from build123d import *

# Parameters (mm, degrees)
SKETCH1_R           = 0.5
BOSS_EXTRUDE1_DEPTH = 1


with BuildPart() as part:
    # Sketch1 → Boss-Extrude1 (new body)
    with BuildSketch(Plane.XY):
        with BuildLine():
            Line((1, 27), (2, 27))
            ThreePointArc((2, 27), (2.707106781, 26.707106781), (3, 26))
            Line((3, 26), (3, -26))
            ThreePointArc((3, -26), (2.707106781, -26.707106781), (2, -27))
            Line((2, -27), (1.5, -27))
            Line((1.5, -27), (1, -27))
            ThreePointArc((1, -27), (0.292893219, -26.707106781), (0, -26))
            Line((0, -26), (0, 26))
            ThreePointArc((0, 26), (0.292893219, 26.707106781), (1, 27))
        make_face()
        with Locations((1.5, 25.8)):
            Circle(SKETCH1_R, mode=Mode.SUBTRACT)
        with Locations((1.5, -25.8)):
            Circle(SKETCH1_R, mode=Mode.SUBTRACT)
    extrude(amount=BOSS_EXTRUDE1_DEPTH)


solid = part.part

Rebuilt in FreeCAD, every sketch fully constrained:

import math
import FreeCAD as App
import Part
import Sketcher
Q = App.Units.Quantity

doc = App.newDocument("Part")
body = doc.addObject("PartDesign::Body", "Body")

sketch1 = body.newObject("Sketcher::SketchObject", "Sketch")
sketch1.AttachmentSupport = (doc.getObject("XY_Plane"), [""])
sketch1.MapMode = "FlatFace"
sketch1.addGeometry([
    Part.LineSegment(App.Vector(2, 27, 0), App.Vector(1, 27, 0)),
    Part.ArcOfCircle(Part.Circle(App.Vector(1, 26, 0), App.Vector(0, 0, 1), 1), math.radians(90), math.radians(180)),
    Part.LineSegment(App.Vector(0, 26, 0), App.Vector(0, -26, 0)),
    Part.ArcOfCircle(Part.Circle(App.Vector(1, -26, 0), App.Vector(0, 0, 1), 1), math.radians(-180), math.radians(-90)),
    Part.LineSegment(App.Vector(1, -27, 0), App.Vector(2, -27, 0)),
    Part.ArcOfCircle(Part.Circle(App.Vector(2, -26, 0), App.Vector(0, 0, 1), 1), math.radians(-90), math.radians(0)),
    Part.LineSegment(App.Vector(3, -26, 0), App.Vector(3, 26, 0)),
    Part.ArcOfCircle(Part.Circle(App.Vector(2, 26, 0), App.Vector(0, 0, 1), 1), math.radians(0), math.radians(90)),
    Part.Circle(App.Vector(1.5, -25.8, 0), App.Vector(0, 0, 1), 0.5),
    Part.Circle(App.Vector(1.5, 25.8, 0), App.Vector(0, 0, 1), 0.5),
], False)
sketch1.addConstraint([
    Sketcher.Constraint("Tangent", 0, 2, 1, 1),
    Sketcher.Constraint("Tangent", 1, 2, 2, 1),
    Sketcher.Constraint("Tangent", 2, 2, 3, 1),
    Sketcher.Constraint("Tangent", 3, 2, 4, 1),
    Sketcher.Constraint("Tangent", 4, 2, 5, 1),
    Sketcher.Constraint("Tangent", 5, 2, 6, 1),
    Sketcher.Constraint("Tangent", 6, 2, 7, 1),
    Sketcher.Constraint("Tangent", 7, 2, 0, 1),
    Sketcher.Constraint("Horizontal", 0),
    Sketcher.Constraint("Vertical", 2),
    Sketcher.Constraint("Horizontal", 4),
    Sketcher.Constraint("Vertical", 6),
    Sketcher.Constraint("Equal", 1, 3),
    Sketcher.Constraint("Equal", 3, 5),
    Sketcher.Constraint("Equal", 5, 7),
    Sketcher.Constraint("Equal", 8, 9),
    Sketcher.Constraint("Symmetric", 1, 2, 2, 2, -1, 1),
    Sketcher.Constraint("Symmetric", 8, 3, 9, 3, -1),
    Sketcher.Constraint("Diameter", 8, Q("1 mm")),
    Sketcher.Constraint("Radius", 1, Q("1 mm")),
    Sketcher.Constraint("DistanceX", 0, 2, 0, 1, Q("1 mm")),
    Sketcher.Constraint("DistanceY", 2, 2, 2, 1, Q("52 mm")),
    Sketcher.Constraint("DistanceX", -1, 1, 8, 3, Q("1.5 mm")),
    Sketcher.Constraint("DistanceY", 8, 3, -1, 1, Q("25.8 mm")),
])
pad1 = body.newObject("PartDesign::Pad", "Pad")
pad1.Profile = sketch1
pad1.Length = 1

doc.recompute()
